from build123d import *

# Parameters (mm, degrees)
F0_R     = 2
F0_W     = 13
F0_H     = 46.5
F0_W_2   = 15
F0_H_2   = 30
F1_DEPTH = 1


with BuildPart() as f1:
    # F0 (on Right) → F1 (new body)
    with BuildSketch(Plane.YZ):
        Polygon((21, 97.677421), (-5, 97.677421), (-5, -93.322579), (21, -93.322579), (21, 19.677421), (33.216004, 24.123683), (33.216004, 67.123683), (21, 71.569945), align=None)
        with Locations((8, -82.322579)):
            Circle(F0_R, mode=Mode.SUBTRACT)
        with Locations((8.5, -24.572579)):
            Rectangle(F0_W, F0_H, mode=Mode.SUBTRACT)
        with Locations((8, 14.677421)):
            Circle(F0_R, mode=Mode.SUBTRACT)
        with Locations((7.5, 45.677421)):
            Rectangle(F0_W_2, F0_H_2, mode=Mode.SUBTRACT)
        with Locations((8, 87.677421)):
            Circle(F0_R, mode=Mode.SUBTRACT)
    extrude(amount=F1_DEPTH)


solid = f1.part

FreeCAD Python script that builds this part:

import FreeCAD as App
import Part
import Sketcher

V = App.Vector
Q = App.Units.Quantity

doc = App.newDocument("Part")
body = doc.addObject("PartDesign::Body", "Body")

# Sketch on YZ plane
sketch1 = body.newObject("Sketcher::SketchObject", "Sketch")
sketch1.AttachmentSupport = (doc.getObject("YZ_Plane"), [""])
sketch1.MapMode = "FlatFace"
sketch1.addGeometry(Part.LineSegment(V(21, 97.7, 0), V(-5, 97.7, 0)), False)
sketch1.addGeometry(Part.LineSegment(V(-5, 97.7, 0), V(-5, -93.3, 0)), False)
sketch1.addGeometry(Part.LineSegment(V(-5, -93.3, 0), V(21, -93.3, 0)), False)
sketch1.addGeometry(Part.LineSegment(V(21, -93.3, 0), V(21, 19.7, 0)), False)
sketch1.addGeometry(Part.LineSegment(V(21, 19.7, 0), V(33.2, 24.1, 0)), False)
sketch1.addGeometry(Part.LineSegment(V(33.2, 24.1, 0), V(33.2, 67.1, 0)), False)
sketch1.addGeometry(Part.LineSegment(V(33.2, 67.1, 0), V(21, 71.6, 0)), False)
sketch1.addGeometry(Part.LineSegment(V(21, 71.6, 0), V(21, 97.7, 0)), False)
sketch1.addGeometry(Part.Circle(V(8, -82.3, 0), V(0, 0, 1), 2), False)
sketch1.addGeometry(Part.LineSegment(V(15, -47.8, 0), V(2, -47.8, 0)), False)
sketch1.addGeometry(Part.LineSegment(V(2, -47.8, 0), V(2, -1.3, 0)), False)
sketch1.addGeometry(Part.LineSegment(V(2, -1.3, 0), V(15, -1.3, 0)), False)
sketch1.addGeometry(Part.LineSegment(V(15, -1.3, 0), V(15, -47.8, 0)), False)
sketch1.addGeometry(Part.Circle(V(8, 14.7, 0), V(0, 0, 1), 2), False)
sketch1.addGeometry(Part.LineSegment(V(15, 30.7, 0), V(0, 30.7, 0)), False)
sketch1.addGeometry(Part.LineSegment(V(0, 30.7, 0), V(0, 60.7, 0)), False)
sketch1.addGeometry(Part.LineSegment(V(0, 60.7, 0), V(15, 60.7, 0)), False)
sketch1.addGeometry(Part.LineSegment(V(15, 60.7, 0), V(15, 30.7, 0)), False)
sketch1.addGeometry(Part.Circle(V(8, 87.7, 0), V(0, 0, 1), 2), False)
sketch1.addConstraint(Sketcher.Constraint("Coincident", 0, 2, 1, 1))
sketch1.addConstraint(Sketcher.Constraint("Coincident", 1, 2, 2, 1))
sketch1.addConstraint(Sketcher.Constraint("Coincident", 2, 2, 3, 1))
sketch1.addConstraint(Sketcher.Constraint("Coincident", 3, 2, 4, 1))
sketch1.addConstraint(Sketcher.Constraint("Coincident", 4, 2, 5, 1))
sketch1.addConstraint(Sketcher.Constraint("Coincident", 5, 2, 6, 1))
sketch1.addConstraint(Sketcher.Constraint("Coincident", 6, 2, 7, 1))
sketch1.addConstraint(Sketcher.Constraint("Coincident", 7, 2, 0, 1))
sketch1.addConstraint(Sketcher.Constraint("Coincident", 9, 2, 10, 1))
sketch1.addConstraint(Sketcher.Constraint("Coincident", 10, 2, 11, 1))
sketch1.addConstraint(Sketcher.Constraint("Coincident", 11, 2, 12, 1))
sketch1.addConstraint(Sketcher.Constraint("Coincident", 12, 2, 9, 1))
sketch1.addConstraint(Sketcher.Constraint("Coincident", 14, 2, 15, 1))
sketch1.addConstraint(Sketcher.Constraint("Coincident", 15, 2, 16, 1))
sketch1.addConstraint(Sketcher.Constraint("Coincident", 16, 2, 17, 1))
sketch1.addConstraint(Sketcher.Constraint("Coincident", 17, 2, 14, 1))
sketch1.addConstraint(Sketcher.Constraint("Horizontal", 0))
sketch1.addConstraint(Sketcher.Constraint("Vertical", 1))
sketch1.addConstraint(Sketcher.Constraint("Horizontal", 2))
sketch1.addConstraint(Sketcher.Constraint("Vertical", 3))
sketch1.addConstraint(Sketcher.Constraint("Vertical", 5))
sketch1.addConstraint(Sketcher.Constraint("Vertical", 7))
sketch1.addConstraint(Sketcher.Constraint("Horizontal", 9))
sketch1.addConstraint(Sketcher.Constraint("Vertical", 10))
sketch1.addConstraint(Sketcher.Constraint("Horizontal", 11))
sketch1.addConstraint(Sketcher.Constraint("Vertical", 12))
sketch1.addConstraint(Sketcher.Constraint("Horizontal", 14))
sketch1.addConstraint(Sketcher.Constraint("Vertical", 15))
sketch1.addConstraint(Sketcher.Constraint("Horizontal", 16))
sketch1.addConstraint(Sketcher.Constraint("Vertical", 17))
sketch1.addConstraint(Sketcher.Constraint("Equal", 8, 13))
sketch1.addConstraint(Sketcher.Constraint("Equal", 13, 18))
sketch1.addConstraint(Sketcher.Constraint("PointOnObject", 14, 2, -2))
sketch1.addConstraint(Sketcher.Constraint("Vertical", 8, 3, 13, 3))
sketch1.addConstraint(Sketcher.Constraint("Vertical", 13, 3, 18, 3))
sketch1.addConstraint(Sketcher.Constraint("Vertical", 3, 2, 6, 2))
sketch1.addConstraint(Sketcher.Constraint("Vertical", 12, 2, 16, 2))
sketch1.addConstraint(Sketcher.Constraint("Equal", 4, 6))
sketch1.addConstraint(Sketcher.Constraint("Diameter", 8, Q("4 mm")))
sketch1.addConstraint(Sketcher.Constraint("DistanceX", 0, 2, 0, 1, Q("26 mm")))
sketch1.addConstraint(Sketcher.Constraint("DistanceX", 9, 2, 9, 1, Q("13 mm")))
sketch1.addConstraint(Sketcher.Constraint("DistanceX", 14, 2, 14, 1, Q("15 mm")))
sketch1.addConstraint(Sketcher.Constraint("DistanceY", 1, 2, 1, 1, Q("191 mm")))
sketch1.addConstraint(Sketcher.Constraint("DistanceY", 3, 1, 3, 2, Q("113 mm")))
sketch1.addConstraint(Sketcher.Constraint("DistanceY", 5, 1, 5, 2, Q("43 mm")))
sketch1.addConstraint(Sketcher.Constraint("DistanceY", 15, 1, 15, 2, Q("30 mm")))
sketch1.addConstraint(Sketcher.Constraint("Angle", 4, Q("20.000001 deg")))
sketch1.addConstraint(Sketcher.Constraint("Distance", 4, Q("13 mm")))
sketch1.addConstraint(Sketcher.Constraint("DistanceY", 10, 1, 10, 2, Q("46.5 mm")))
sketch1.addConstraint(Sketcher.Constraint("DistanceX", -1, 1, 8, 3, Q("8 mm")))
sketch1.addConstraint(Sketcher.Constraint("DistanceX", 0, 2, -1, 1, Q("5 mm")))
sketch1.addConstraint(Sketcher.Constraint("DistanceY", 8, 3, 13, 3, Q("97 mm")))
sketch1.addConstraint(Sketcher.Constraint("DistanceY", 13, 3, 18, 3, Q("73 mm")))
sketch1.addConstraint(Sketcher.Constraint("DistanceY", 18, 3, 0, 2, Q("10 mm")))
sketch1.addConstraint(Sketcher.Constraint("DistanceY", 10, 2, 13, 3, Q("16 mm")))
sketch1.addConstraint(Sketcher.Constraint("DistanceY", 13, 3, 14, 2, Q("16 mm")))
sketch1.addConstraint(Sketcher.Constraint("DistanceY", 8, 3, -1, 1, Q("82.322579 mm")))
pad1 = body.newObject("PartDesign::Pad", "Pad")
pad1.Profile = sketch1
pad1.Length = 1

doc.recompute()
